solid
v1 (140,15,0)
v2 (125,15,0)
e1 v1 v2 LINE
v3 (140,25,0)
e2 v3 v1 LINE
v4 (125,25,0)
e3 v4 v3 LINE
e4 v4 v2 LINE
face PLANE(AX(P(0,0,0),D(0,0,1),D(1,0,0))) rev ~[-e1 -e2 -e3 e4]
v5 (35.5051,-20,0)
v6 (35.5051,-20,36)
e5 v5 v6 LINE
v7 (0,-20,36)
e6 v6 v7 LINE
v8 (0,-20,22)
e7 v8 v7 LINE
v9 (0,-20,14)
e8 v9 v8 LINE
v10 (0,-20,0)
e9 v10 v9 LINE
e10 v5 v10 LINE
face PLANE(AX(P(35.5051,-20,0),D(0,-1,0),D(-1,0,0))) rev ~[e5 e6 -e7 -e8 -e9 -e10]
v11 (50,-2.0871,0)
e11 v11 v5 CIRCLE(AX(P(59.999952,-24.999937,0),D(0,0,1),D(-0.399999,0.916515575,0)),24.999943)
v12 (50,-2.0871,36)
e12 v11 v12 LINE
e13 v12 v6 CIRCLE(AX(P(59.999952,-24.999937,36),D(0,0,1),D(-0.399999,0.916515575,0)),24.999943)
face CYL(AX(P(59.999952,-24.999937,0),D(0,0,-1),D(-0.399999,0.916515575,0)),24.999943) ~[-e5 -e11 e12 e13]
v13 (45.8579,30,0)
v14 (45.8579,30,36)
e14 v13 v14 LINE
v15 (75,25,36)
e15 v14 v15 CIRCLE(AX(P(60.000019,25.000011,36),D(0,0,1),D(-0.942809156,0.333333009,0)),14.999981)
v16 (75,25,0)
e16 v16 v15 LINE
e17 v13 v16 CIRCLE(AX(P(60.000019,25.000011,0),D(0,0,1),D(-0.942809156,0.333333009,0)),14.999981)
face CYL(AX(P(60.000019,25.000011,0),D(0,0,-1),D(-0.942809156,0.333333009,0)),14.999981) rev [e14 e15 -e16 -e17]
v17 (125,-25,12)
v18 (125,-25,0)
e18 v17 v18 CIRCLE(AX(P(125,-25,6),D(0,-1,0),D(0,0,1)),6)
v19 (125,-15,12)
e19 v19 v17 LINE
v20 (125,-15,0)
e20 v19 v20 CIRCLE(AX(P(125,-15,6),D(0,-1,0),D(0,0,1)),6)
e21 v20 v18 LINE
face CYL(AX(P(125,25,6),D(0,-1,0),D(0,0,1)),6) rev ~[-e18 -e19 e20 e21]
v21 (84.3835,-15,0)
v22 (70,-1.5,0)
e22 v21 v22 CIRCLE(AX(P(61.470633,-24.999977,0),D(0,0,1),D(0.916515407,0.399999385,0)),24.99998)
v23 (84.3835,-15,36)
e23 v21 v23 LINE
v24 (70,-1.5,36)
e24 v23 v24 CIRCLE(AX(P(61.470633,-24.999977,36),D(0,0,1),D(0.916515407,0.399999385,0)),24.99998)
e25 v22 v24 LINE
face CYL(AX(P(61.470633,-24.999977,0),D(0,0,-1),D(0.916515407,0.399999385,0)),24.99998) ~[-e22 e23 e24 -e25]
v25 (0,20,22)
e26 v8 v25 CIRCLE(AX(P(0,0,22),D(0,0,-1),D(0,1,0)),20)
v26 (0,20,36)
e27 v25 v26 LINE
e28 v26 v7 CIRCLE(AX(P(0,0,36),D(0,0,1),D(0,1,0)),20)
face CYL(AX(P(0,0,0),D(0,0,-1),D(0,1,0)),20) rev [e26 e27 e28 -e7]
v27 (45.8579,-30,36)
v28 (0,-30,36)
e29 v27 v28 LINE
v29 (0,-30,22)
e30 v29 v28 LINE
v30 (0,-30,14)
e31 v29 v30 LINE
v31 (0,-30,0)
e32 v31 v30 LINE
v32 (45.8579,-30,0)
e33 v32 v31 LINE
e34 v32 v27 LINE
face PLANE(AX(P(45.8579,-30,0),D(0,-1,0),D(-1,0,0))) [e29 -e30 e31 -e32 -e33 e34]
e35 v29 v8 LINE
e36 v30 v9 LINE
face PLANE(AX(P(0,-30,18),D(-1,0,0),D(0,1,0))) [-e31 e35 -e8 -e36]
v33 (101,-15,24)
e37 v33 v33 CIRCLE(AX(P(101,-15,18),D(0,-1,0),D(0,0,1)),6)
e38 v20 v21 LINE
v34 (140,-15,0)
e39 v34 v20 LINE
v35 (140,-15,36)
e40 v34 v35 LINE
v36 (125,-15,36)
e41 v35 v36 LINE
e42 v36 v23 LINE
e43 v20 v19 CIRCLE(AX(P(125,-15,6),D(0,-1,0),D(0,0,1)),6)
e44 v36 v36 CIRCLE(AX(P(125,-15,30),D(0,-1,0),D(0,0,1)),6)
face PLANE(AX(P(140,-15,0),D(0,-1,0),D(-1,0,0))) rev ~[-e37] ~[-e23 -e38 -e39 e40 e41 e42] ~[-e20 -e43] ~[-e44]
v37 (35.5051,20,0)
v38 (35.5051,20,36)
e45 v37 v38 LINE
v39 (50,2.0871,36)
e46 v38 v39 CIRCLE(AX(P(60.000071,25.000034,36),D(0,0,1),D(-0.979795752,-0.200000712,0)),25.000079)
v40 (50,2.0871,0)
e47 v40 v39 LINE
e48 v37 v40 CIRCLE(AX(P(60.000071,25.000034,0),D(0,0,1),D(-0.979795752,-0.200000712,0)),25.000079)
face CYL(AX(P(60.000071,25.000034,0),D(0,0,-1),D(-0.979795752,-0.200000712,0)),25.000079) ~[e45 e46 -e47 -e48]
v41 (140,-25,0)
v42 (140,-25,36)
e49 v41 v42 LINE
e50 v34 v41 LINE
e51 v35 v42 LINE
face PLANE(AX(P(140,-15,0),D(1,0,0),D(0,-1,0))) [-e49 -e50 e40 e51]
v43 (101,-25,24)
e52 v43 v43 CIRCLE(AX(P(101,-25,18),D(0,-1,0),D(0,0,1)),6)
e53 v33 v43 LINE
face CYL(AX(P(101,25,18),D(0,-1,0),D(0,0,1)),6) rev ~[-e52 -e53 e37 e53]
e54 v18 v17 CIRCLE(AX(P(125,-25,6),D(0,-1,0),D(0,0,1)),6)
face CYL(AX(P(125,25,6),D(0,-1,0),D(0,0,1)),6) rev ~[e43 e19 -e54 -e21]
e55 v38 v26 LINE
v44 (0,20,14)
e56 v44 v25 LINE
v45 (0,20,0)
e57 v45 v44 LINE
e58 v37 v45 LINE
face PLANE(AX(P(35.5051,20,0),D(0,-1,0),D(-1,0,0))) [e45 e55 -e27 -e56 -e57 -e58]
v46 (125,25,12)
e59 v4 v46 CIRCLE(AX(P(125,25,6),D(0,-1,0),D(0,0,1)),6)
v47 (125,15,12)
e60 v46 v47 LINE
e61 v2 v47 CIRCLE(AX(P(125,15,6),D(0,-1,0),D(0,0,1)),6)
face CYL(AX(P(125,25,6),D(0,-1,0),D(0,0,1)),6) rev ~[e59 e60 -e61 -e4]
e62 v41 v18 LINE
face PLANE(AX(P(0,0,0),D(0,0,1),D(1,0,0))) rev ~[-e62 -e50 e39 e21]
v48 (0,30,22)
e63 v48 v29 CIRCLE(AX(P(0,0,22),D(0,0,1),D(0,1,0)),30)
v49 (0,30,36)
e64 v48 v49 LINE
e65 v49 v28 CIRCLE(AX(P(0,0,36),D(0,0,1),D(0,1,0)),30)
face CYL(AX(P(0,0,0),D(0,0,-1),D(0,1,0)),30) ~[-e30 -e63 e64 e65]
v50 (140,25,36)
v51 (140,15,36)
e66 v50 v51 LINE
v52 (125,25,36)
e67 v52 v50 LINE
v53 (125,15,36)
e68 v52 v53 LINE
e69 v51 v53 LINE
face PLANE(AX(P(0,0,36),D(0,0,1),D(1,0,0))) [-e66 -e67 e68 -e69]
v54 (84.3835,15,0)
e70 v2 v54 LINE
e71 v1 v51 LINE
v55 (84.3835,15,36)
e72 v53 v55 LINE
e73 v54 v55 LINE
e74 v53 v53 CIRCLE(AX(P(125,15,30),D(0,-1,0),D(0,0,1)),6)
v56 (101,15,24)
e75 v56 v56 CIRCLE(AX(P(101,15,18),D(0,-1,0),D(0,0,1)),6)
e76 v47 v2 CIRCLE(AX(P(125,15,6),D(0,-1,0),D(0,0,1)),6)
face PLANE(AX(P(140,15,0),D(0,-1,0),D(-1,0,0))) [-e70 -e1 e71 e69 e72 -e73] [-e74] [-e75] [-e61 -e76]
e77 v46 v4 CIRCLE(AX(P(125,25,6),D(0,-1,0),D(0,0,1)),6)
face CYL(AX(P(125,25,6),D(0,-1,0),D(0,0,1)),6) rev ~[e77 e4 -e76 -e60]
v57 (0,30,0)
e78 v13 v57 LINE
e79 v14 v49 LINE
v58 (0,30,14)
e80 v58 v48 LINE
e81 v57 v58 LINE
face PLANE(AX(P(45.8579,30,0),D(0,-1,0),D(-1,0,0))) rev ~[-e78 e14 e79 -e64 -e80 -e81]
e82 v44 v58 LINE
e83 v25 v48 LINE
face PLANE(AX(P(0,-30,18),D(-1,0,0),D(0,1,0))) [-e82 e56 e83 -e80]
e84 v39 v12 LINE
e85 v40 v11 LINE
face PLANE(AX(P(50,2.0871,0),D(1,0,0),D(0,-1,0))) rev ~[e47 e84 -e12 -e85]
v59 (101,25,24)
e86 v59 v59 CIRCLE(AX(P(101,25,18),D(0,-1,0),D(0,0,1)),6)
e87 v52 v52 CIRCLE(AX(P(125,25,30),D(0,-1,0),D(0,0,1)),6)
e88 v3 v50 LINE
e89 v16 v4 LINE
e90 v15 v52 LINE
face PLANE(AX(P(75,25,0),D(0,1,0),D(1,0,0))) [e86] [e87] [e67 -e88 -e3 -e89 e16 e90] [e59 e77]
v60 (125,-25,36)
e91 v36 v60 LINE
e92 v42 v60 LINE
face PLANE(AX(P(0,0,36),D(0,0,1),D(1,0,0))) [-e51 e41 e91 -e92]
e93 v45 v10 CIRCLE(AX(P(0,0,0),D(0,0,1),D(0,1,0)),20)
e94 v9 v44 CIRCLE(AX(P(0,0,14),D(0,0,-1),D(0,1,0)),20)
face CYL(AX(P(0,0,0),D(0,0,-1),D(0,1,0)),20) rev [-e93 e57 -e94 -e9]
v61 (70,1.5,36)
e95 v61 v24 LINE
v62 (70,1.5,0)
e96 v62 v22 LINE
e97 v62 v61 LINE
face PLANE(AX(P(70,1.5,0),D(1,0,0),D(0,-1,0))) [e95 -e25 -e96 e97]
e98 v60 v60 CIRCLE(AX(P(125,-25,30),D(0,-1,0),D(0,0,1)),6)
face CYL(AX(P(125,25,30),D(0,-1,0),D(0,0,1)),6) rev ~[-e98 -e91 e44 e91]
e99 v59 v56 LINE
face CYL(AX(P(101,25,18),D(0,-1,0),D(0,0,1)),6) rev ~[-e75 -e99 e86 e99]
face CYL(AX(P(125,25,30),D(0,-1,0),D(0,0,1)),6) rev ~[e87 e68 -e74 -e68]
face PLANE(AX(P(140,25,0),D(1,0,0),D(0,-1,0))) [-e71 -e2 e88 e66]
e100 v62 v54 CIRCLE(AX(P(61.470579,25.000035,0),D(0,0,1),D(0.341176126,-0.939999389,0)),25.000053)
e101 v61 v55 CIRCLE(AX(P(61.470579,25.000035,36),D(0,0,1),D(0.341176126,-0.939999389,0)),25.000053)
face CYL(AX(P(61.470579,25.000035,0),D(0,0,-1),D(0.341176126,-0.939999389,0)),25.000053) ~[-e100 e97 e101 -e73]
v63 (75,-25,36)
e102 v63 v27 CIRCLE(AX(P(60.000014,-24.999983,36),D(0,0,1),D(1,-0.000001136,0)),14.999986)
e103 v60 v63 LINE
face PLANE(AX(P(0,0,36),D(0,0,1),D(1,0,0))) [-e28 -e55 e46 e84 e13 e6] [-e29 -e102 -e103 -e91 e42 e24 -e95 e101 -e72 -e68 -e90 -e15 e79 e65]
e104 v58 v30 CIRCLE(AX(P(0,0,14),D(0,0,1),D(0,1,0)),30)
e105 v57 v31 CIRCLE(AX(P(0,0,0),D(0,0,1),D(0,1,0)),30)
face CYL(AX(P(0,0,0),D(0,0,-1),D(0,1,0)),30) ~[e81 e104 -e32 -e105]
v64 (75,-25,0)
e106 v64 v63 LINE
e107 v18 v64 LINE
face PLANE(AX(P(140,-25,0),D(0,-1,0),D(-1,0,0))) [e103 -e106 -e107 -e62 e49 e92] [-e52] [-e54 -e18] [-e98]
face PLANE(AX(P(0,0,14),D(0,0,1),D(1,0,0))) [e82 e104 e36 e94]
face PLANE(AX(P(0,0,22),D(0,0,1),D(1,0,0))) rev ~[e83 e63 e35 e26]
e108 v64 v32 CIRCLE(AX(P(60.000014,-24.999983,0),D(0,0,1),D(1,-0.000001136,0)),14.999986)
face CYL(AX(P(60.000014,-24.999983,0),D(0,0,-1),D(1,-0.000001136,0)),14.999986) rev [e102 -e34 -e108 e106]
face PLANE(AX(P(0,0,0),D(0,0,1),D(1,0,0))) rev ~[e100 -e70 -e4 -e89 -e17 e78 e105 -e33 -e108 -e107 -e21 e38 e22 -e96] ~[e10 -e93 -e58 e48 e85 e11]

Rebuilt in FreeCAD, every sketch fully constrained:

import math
import FreeCAD as App
import Part
import Sketcher

V = App.Vector

doc = App.newDocument("Part")
body = doc.addObject("PartDesign::Body", "Body")

sketch1 = doc.addObject("Sketcher::SketchObject", "Sketch")
body.addObject(sketch1)
sketch1.AttachmentSupport = (doc.XY_Plane, [""])
sketch1.MapMode = "FlatFace"
sketch1.addGeometry([
    Part.LineSegment(V(140, 25, 0), V(75, 25, 0)),
    Part.ArcOfCircle(Part.Circle(V(60, 25, 0), V(0, 0, 1), 14.999966), math.radians(160.528734), math.radians(360)),
    Part.LineSegment(V(45.8579, 30, 0), V(0, 30, 0)),
    Part.ArcOfCircle(Part.Circle(V(0, 0, 0), V(0, 0, 1), 30), math.radians(90), math.radians(270)),
    Part.LineSegment(V(0, -30, 0), V(45.8579, -30, 0)),
    Part.ArcOfCircle(Part.Circle(V(60, -25, 0), V(0, 0, 1), 15), math.radians(0), math.radians(199.471266)),
    Part.LineSegment(V(75, -25, 0), V(140, -25, 0)),
    Part.LineSegment(V(140, -25, 0), V(140, -15, 0)),
    Part.LineSegment(V(140, -15, 0), V(84.3835, -15, 0)),
    Part.ArcOfCircle(Part.Circle(V(61.4706, -25, 0), V(0, 0, 1), 25.00002), math.radians(23.578159), math.radians(70.051473)),
    Part.LineSegment(V(70, -1.5, 0), V(70, 1.5, 0)),
    Part.ArcOfCircle(Part.Circle(V(61.4706, 25, 0), V(0, 0, 1), 25.000013), math.radians(-70.051473), math.radians(-23.578159)),
    Part.LineSegment(V(84.3835, 15, 0), V(140, 15, 0)),
    Part.LineSegment(V(140, 15, 0), V(140, 25, 0)),
    Part.ArcOfCircle(Part.Circle(V(60, 25, 0), V(0, 0, 1), 25.000003), math.radians(-168.463042), math.radians(-113.578159)),
    Part.LineSegment(V(50, 2.0871, 0), V(50, -2.0871, 0)),
    Part.ArcOfCircle(Part.Circle(V(60, -25, 0), V(0, 0, 1), 25.00002), math.radians(113.578159), math.radians(168.463042)),
    Part.LineSegment(V(35.5051, -20, 0), V(0, -20, 0)),
    Part.ArcOfCircle(Part.Circle(V(0, 0, 0), V(0, 0, 1), 20), math.radians(90), math.radians(270)),
    Part.LineSegment(V(0, 20, 0), V(35.5051, 20, 0)),
], False)
sketch1.addConstraint([
    Sketcher.Constraint("Coincident", 0, 2, 1, 2),
    Sketcher.Constraint("Coincident", 1, 1, 2, 1),
    Sketcher.Constraint("Tangent", 2, 2, 3, 1),
    Sketcher.Constraint("Tangent", 3, 2, 4, 1),
    Sketcher.Constraint("Coincident", 4, 2, 5, 2),
    Sketcher.Constraint("Coincident", 5, 1, 6, 1),
    Sketcher.Constraint("Coincident", 6, 2, 7, 1),
    Sketcher.Constraint("Coincident", 7, 2, 8, 1),
    Sketcher.Constraint("Coincident", 8, 2, 9, 1),
    Sketcher.Constraint("Coincident", 9, 2, 10, 1),
    Sketcher.Constraint("Coincident", 10, 2, 11, 1),
    Sketcher.Constraint("Coincident", 11, 2, 12, 1),
    Sketcher.Constraint("Coincident", 12, 2, 13, 1),
    Sketcher.Constraint("Coincident", 13, 2, 0, 1),
    Sketcher.Constraint("Coincident", 14, 2, 15, 1),
    Sketcher.Constraint("Coincident", 15, 2, 16, 1),
    Sketcher.Constraint("Coincident", 16, 2, 17, 1),
    Sketcher.Constraint("Tangent", 17, 2, 18, 2),
    Sketcher.Constraint("Tangent", 18, 1, 19, 1),
    Sketcher.Constraint("Coincident", 19, 2, 14, 1),
    Sketcher.Constraint("Horizontal", 0),
    Sketcher.Constraint("Horizontal", 2),
    Sketcher.Constraint("Horizontal", 4),
    Sketcher.Constraint("Horizontal", 6),
    Sketcher.Constraint("Vertical", 7),
    Sketcher.Constraint("Horizontal", 8),
    Sketcher.Constraint("Vertical", 10),
    Sketcher.Constraint("Horizontal", 12),
    Sketcher.Constraint("Vertical", 13),
    Sketcher.Constraint("Vertical", 15),
    Sketcher.Constraint("Horizontal", 17),
    Sketcher.Constraint("Horizontal", 19),
    Sketcher.Constraint("Coincident", 3, 3, -1, 1),
    Sketcher.Constraint("Coincident", 18, 3, -1, 1),
    Sketcher.Constraint("Coincident", 14, 3, 1, 3),
    Sketcher.Constraint("Coincident", 16, 3, 5, 3),
    Sketcher.Constraint("Equal", 1, 5),
    Sketcher.Constraint("Equal", 9, 11),
    Sketcher.Constraint("Equal", 11, 14),
    Sketcher.Constraint("Equal", 14, 16),
    Sketcher.Constraint("Symmetric", 1, 3, 5, 3, -1),
    Sketcher.Constraint("Symmetric", 9, 3, 11, 3, -1),
    Sketcher.Constraint("Symmetric", 7, 2, 12, 2, -1),
    Sketcher.Constraint("Horizontal", 5, 3, 9, 3),
    Sketcher.Constraint("Horizontal", 14, 3, 0, 2),
    Sketcher.Constraint("Horizontal", 16, 3, 5, 1),
    Sketcher.Constraint("Radius", 1, 15.0),
    Sketcher.Constraint("Radius", 3, 30.0),
    Sketcher.Constraint("Radius", 9, 25.0),
    Sketcher.Constraint("Radius", 18, 20.0),
    Sketcher.Constraint("DistanceY", 10, 1, 10, 2, 3.0),
    Sketcher.Constraint("DistanceX", -1, 1, 1, 3, 60.0),
    Sketcher.Constraint("DistanceY", -1, 1, 1, 3, 25.0),
    Sketcher.Constraint("DistanceY", 7, 2, -1, 1, 15.0),
    Sketcher.Constraint("DistanceX", -1, 1, 14, 2, 50.0),
    Sketcher.Constraint("DistanceX", 5, 3, 6, 2, 80.0),
    Sketcher.Constraint("DistanceX", 14, 2, 10, 2, 20.0),
])
pad1 = doc.addObject("PartDesign::Pad", "Pad")
body.addObject(pad1)
pad1.Profile = sketch1
pad1.Length = 36

sketch2 = doc.addObject("Sketcher::SketchObject", "Sketch001")
body.addObject(sketch2)
sketch2.AttachmentSupport = (doc.XZ_Plane, [""])
sketch2.MapMode = "FlatFace"
sketch2.AttachmentOffset = App.Placement(V(0, 0, -25), App.Rotation())
sketch2.addGeometry([
    Part.Circle(V(125, 6, 0), V(0, 0, 1), 6),
    Part.Circle(V(125, 30, 0), V(0, 0, 1), 6),
    Part.Circle(V(101, 18, 0), V(0, 0, 1), 6),
], False)
sketch2.addConstraint([
    Sketcher.Constraint("Equal", 0, 1),
    Sketcher.Constraint("Equal", 1, 2),
    Sketcher.Constraint("Vertical", 0, 3, 1, 3),
    Sketcher.Constraint("Diameter", 0, 12.0),
    Sketcher.Constraint("DistanceX", -1, 1, 0, 3, 125.0),
    Sketcher.Constraint("DistanceY", -1, 1, 0, 3, 6.0),
    Sketcher.Constraint("DistanceY", -1, 1, 1, 3, 30.0),
    Sketcher.Constraint("DistanceX", -1, 1, 2, 3, 101.0),
    Sketcher.Constraint("DistanceY", -1, 1, 2, 3, 18.0),
])
doc.recompute()
hole = doc.addObject("PartDesign::Hole", "Hole")
body.addObject(hole)
hole.Profile = sketch2
hole.ThreadType = "None"
hole.Diameter = 12
hole.DepthType = "Dimension"
hole.Depth = 50
hole.DrillPoint = "Flat"
hole.Reversed = True

sketch3 = doc.addObject("Sketcher::SketchObject", "Sketch002")
body.addObject(sketch3)
sketch3.AttachmentSupport = (doc.XY_Plane, [""])
sketch3.MapMode = "FlatFace"
sketch3.AttachmentOffset = App.Placement(V(0, 0, 18), App.Rotation())
sketch3.addGeometry([
    Part.LineSegment(V(0, -30, 0), V(0, 30, 0)),
    Part.ArcOfCircle(Part.Circle(V(0, 0, 0), V(0, 0, 1), 30), math.radians(90), math.radians(270)),
], False)
sketch3.addConstraint([
    Sketcher.Constraint("Coincident", 0, 1, 1, 2),
    Sketcher.Constraint("Coincident", 1, 1, 0, 2),
    Sketcher.Constraint("Vertical", 0),
    Sketcher.Constraint("Coincident", 1, 3, -1, 1),
    Sketcher.Constraint("PointOnObject", 0, 1, -2),
    Sketcher.Constraint("Radius", 1, 30.0),
])
pocket1 = doc.addObject("PartDesign::Pocket", "Pocket")
body.addObject(pocket1)
pocket1.Profile = sketch3
pocket1.Length = 8
pocket1.Midplane = True

doc.recompute()
